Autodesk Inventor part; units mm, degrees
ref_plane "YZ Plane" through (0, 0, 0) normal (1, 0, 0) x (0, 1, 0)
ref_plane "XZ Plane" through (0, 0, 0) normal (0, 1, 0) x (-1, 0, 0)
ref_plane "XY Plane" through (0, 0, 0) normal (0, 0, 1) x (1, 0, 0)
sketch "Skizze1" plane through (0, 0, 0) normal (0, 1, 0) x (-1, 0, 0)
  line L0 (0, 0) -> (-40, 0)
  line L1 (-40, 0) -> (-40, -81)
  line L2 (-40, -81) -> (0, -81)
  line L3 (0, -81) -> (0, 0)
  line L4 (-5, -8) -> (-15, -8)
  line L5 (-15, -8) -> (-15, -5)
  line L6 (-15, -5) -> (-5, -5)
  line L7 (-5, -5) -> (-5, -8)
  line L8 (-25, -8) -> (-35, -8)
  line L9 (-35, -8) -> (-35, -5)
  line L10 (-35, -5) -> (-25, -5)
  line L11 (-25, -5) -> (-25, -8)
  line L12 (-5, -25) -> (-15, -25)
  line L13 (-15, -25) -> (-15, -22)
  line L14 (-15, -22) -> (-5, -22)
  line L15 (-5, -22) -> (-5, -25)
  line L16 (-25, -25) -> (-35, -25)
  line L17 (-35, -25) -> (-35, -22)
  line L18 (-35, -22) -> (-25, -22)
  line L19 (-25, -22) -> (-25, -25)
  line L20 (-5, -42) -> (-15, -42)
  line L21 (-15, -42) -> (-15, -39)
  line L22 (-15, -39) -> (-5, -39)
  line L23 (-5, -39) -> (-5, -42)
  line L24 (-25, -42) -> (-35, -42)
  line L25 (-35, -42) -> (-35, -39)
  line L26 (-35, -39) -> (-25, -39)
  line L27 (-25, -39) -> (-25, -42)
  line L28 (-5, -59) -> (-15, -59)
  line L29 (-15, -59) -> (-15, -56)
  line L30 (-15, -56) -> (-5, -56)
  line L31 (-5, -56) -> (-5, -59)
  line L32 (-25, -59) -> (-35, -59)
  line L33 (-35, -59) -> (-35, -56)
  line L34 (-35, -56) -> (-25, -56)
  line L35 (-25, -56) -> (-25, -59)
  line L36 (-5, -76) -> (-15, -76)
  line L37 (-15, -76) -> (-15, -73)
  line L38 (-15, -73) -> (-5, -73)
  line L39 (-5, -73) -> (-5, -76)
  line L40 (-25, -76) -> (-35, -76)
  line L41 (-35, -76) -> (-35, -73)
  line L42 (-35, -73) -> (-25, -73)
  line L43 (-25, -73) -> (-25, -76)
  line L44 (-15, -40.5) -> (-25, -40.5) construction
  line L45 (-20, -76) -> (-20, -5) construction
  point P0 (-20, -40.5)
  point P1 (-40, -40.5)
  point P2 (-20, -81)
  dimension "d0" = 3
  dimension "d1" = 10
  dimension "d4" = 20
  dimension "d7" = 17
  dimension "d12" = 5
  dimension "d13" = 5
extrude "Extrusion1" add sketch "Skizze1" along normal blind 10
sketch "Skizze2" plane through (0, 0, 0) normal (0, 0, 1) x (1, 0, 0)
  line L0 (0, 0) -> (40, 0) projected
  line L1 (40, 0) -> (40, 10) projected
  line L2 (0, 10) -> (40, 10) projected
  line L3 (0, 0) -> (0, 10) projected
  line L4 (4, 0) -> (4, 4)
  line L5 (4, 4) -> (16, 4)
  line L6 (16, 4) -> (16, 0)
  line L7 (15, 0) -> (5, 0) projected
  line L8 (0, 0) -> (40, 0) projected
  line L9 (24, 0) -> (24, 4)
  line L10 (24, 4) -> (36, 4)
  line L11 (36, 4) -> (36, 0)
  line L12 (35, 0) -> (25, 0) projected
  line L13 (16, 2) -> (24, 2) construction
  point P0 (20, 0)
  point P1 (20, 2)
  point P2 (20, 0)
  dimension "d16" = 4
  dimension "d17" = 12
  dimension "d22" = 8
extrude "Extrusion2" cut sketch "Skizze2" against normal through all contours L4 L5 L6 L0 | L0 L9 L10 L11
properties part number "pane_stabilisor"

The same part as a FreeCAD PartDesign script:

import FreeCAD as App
import Part
import Sketcher
from FreeCAD import Vector

doc = App.newDocument("Part")
params = doc.addObject("Spreadsheet::Sheet", "Params")
for row, (alias, value) in enumerate([
    ("sketch1_width", "10 mm"),
    ("sketch1_height", "3 mm"),
    ("pad1_length", "10 mm"),
    ("sketch2_width", "12 mm"),
    ("sketch2_height", "4 mm"),
], start=1):
    params.set(f"A{row}", alias)
    params.set(f"B{row}", "=" + value)
    params.setAlias(f"B{row}", alias)

body = doc.addObject("PartDesign::Body", "Body")

# Sketch on XZ plane
sketch1 = body.newObject("Sketcher::SketchObject", "Sketch")
sketch1.AttachmentSupport = (doc.getObject("XZ_Plane"), [""])
sketch1.MapMode = "FlatFace"
sketch1.addGeometry([
    Part.LineSegment(Vector(0, -81, 0), Vector(0, 0, 0)),  # 0
    Part.LineSegment(Vector(0, 0, 0), Vector(40, 0, 0)),  # 1
    Part.LineSegment(Vector(40, 0, 0), Vector(40, -81, 0)),  # 2
    Part.LineSegment(Vector(40, -81, 0), Vector(0, -81, 0)),  # 3
    Part.LineSegment(Vector(25, -73, 0), Vector(25, -76, 0)),  # 4
    Part.LineSegment(Vector(25, -76, 0), Vector(35, -76, 0)),  # 5
    Part.LineSegment(Vector(35, -76, 0), Vector(35, -73, 0)),  # 6
    Part.LineSegment(Vector(35, -73, 0), Vector(25, -73, 0)),  # 7
    Part.LineSegment(Vector(25, -56, 0), Vector(25, -59, 0)),  # 8
    Part.LineSegment(Vector(25, -59, 0), Vector(35, -59, 0)),  # 9
    Part.LineSegment(Vector(35, -59, 0), Vector(35, -56, 0)),  # 10
    Part.LineSegment(Vector(35, -56, 0), Vector(25, -56, 0)),  # 11
    Part.LineSegment(Vector(5, -73, 0), Vector(5, -76, 0)),  # 12
    Part.LineSegment(Vector(5, -76, 0), Vector(15, -76, 0)),  # 13
    Part.LineSegment(Vector(15, -76, 0), Vector(15, -73, 0)),  # 14
    Part.LineSegment(Vector(15, -73, 0), Vector(5, -73, 0)),  # 15
    Part.LineSegment(Vector(5, -56, 0), Vector(5, -59, 0)),  # 16
    Part.LineSegment(Vector(5, -59, 0), Vector(15, -59, 0)),  # 17
    Part.LineSegment(Vector(15, -59, 0), Vector(15, -56, 0)),  # 18
    Part.LineSegment(Vector(15, -56, 0), Vector(5, -56, 0)),  # 19
    Part.LineSegment(Vector(25, -39, 0), Vector(25, -42, 0)),  # 20
    Part.LineSegment(Vector(25, -42, 0), Vector(35, -42, 0)),  # 21
    Part.LineSegment(Vector(35, -42, 0), Vector(35, -39, 0)),  # 22
    Part.LineSegment(Vector(35, -39, 0), Vector(25, -39, 0)),  # 23
    Part.LineSegment(Vector(25, -22, 0), Vector(25, -25, 0)),  # 24
    Part.LineSegment(Vector(25, -25, 0), Vector(35, -25, 0)),  # 25
    Part.LineSegment(Vector(35, -25, 0), Vector(35, -22, 0)),  # 26
    Part.LineSegment(Vector(35, -22, 0), Vector(25, -22, 0)),  # 27
    Part.LineSegment(Vector(25, -5, 0), Vector(25, -8, 0)),  # 28
    Part.LineSegment(Vector(25, -8, 0), Vector(35, -8, 0)),  # 29
    Part.LineSegment(Vector(35, -8, 0), Vector(35, -5, 0)),  # 30
    Part.LineSegment(Vector(35, -5, 0), Vector(25, -5, 0)),  # 31
    Part.LineSegment(Vector(5, -39, 0), Vector(5, -42, 0)),  # 32
    Part.LineSegment(Vector(5, -42, 0), Vector(15, -42, 0)),  # 33
    Part.LineSegment(Vector(15, -42, 0), Vector(15, -39, 0)),  # 34
    Part.LineSegment(Vector(15, -39, 0), Vector(5, -39, 0)),  # 35
    Part.LineSegment(Vector(5, -22, 0), Vector(5, -25, 0)),  # 36
    Part.LineSegment(Vector(5, -25, 0), Vector(15, -25, 0)),  # 37
    Part.LineSegment(Vector(15, -25, 0), Vector(15, -22, 0)),  # 38
    Part.LineSegment(Vector(15, -22, 0), Vector(5, -22, 0)),  # 39
    Part.LineSegment(Vector(5, -5, 0), Vector(5, -8, 0)),  # 40
    Part.LineSegment(Vector(5, -8, 0), Vector(15, -8, 0)),  # 41
    Part.LineSegment(Vector(15, -8, 0), Vector(15, -5, 0)),  # 42
    Part.LineSegment(Vector(15, -5, 0), Vector(5, -5, 0)),  # 43
], False)
sketch1.addConstraint([
    Sketcher.Constraint("Coincident", 0, 2, 1, 1),
    Sketcher.Constraint("Coincident", 1, 2, 2, 1),
    Sketcher.Constraint("Coincident", 2, 2, 3, 1),
    Sketcher.Constraint("Coincident", 3, 2, 0, 1),
    Sketcher.Constraint("Coincident", 4, 2, 5, 1),
    Sketcher.Constraint("Coincident", 5, 2, 6, 1),
    Sketcher.Constraint("Coincident", 6, 2, 7, 1),
    Sketcher.Constraint("Coincident", 7, 2, 4, 1),
    Sketcher.Constraint("Coincident", 8, 2, 9, 1),
    Sketcher.Constraint("Coincident", 9, 2, 10, 1),
    Sketcher.Constraint("Coincident", 10, 2, 11, 1),
    Sketcher.Constraint("Coincident", 11, 2, 8, 1),
    Sketcher.Constraint("Coincident", 12, 2, 13, 1),
    Sketcher.Constraint("Coincident", 13, 2, 14, 1),
    Sketcher.Constraint("Coincident", 14, 2, 15, 1),
    Sketcher.Constraint("Coincident", 15, 2, 12, 1),
    Sketcher.Constraint("Coincident", 16, 2, 17, 1),
    Sketcher.Constraint("Coincident", 17, 2, 18, 1),
    Sketcher.Constraint("Coincident", 18, 2, 19, 1),
    Sketcher.Constraint("Coincident", 19, 2, 16, 1),
    Sketcher.Constraint("Coincident", 20, 2, 21, 1),
    Sketcher.Constraint("Coincident", 21, 2, 22, 1),
    Sketcher.Constraint("Coincident", 22, 2, 23, 1),
    Sketcher.Constraint("Coincident", 23, 2, 20, 1),
    Sketcher.Constraint("Coincident", 24, 2, 25, 1),
    Sketcher.Constraint("Coincident", 25, 2, 26, 1),
    Sketcher.Constraint("Coincident", 26, 2, 27, 1),
    Sketcher.Constraint("Coincident", 27, 2, 24, 1),
    Sketcher.Constraint("Coincident", 28, 2, 29, 1),
    Sketcher.Constraint("Coincident", 29, 2, 30, 1),
    Sketcher.Constraint("Coincident", 30, 2, 31, 1),
    Sketcher.Constraint("Coincident", 31, 2, 28, 1),
    Sketcher.Constraint("Coincident", 32, 2, 33, 1),
    Sketcher.Constraint("Coincident", 33, 2, 34, 1),
    Sketcher.Constraint("Coincident", 34, 2, 35, 1),
    Sketcher.Constraint("Coincident", 35, 2, 32, 1),
    Sketcher.Constraint("Coincident", 36, 2, 37, 1),
    Sketcher.Constraint("Coincident", 37, 2, 38, 1),
    Sketcher.Constraint("Coincident", 38, 2, 39, 1),
    Sketcher.Constraint("Coincident", 39, 2, 36, 1),
    Sketcher.Constraint("Coincident", 40, 2, 41, 1),
    Sketcher.Constraint("Coincident", 41, 2, 42, 1),
    Sketcher.Constraint("Coincident", 42, 2, 43, 1),
    Sketcher.Constraint("Coincident", 43, 2, 40, 1),
    Sketcher.Constraint("Vertical", 0),
    Sketcher.Constraint("Horizontal", 1),
    Sketcher.Constraint("Vertical", 2),
    Sketcher.Constraint("Horizontal", 3),
    Sketcher.Constraint("Vertical", 4),
    Sketcher.Constraint("Horizontal", 5),
    Sketcher.Constraint("Vertical", 6),
    Sketcher.Constraint("Horizontal", 7),
    Sketcher.Constraint("Vertical", 8),
    Sketcher.Constraint("Horizontal", 9),
    Sketcher.Constraint("Vertical", 10),
    Sketcher.Constraint("Horizontal", 11),
    Sketcher.Constraint("Vertical", 12),
    Sketcher.Constraint("Horizontal", 13),
    Sketcher.Constraint("Vertical", 14),
    Sketcher.Constraint("Horizontal", 15),
    Sketcher.Constraint("Vertical", 16),
    Sketcher.Constraint("Horizontal", 17),
    Sketcher.Constraint("Vertical", 18),
    Sketcher.Constraint("Horizontal", 19),
    Sketcher.Constraint("Vertical", 20),
    Sketcher.Constraint("Horizontal", 21),
    Sketcher.Constraint("Vertical", 22),
    Sketcher.Constraint("Horizontal", 23),
    Sketcher.Constraint("Vertical", 24),
    Sketcher.Constraint("Horizontal", 25),
    Sketcher.Constraint("Vertical", 26),
    Sketcher.Constraint("Horizontal", 27),
    Sketcher.Constraint("Vertical", 28),
    Sketcher.Constraint("Horizontal", 29),
    Sketcher.Constraint("Vertical", 30),
    Sketcher.Constraint("Horizontal", 31),
    Sketcher.Constraint("Vertical", 32),
    Sketcher.Constraint("Horizontal", 33),
    Sketcher.Constraint("Vertical", 34),
    Sketcher.Constraint("Horizontal", 35),
    Sketcher.Constraint("Vertical", 36),
    Sketcher.Constraint("Horizontal", 37),
    Sketcher.Constraint("Vertical", 38),
    Sketcher.Constraint("Horizontal", 39),
    Sketcher.Constraint("Vertical", 40),
    Sketcher.Constraint("Horizontal", 41),
    Sketcher.Constraint("Vertical", 42),
    Sketcher.Constraint("Horizontal", 43),
    Sketcher.Constraint("Coincident", 0, 2, -1, 1),
    Sketcher.Constraint("Horizontal", 5, 2, 12, 2),
    Sketcher.Constraint("Horizontal", 7, 2, 14, 2),
    Sketcher.Constraint("Horizontal", 9, 2, 16, 2),
    Sketcher.Constraint("Horizontal", 11, 2, 18, 2),
    Sketcher.Constraint("Horizontal", 21, 2, 32, 2),
    Sketcher.Constraint("Horizontal", 23, 2, 34, 2),
    Sketcher.Constraint("Horizontal", 25, 2, 36, 2),
    Sketcher.Constraint("Horizontal", 27, 2, 38, 2),
    Sketcher.Constraint("Horizontal", 29, 2, 40, 2),
    Sketcher.Constraint("Horizontal", 31, 2, 42, 2),
    Sketcher.Constraint("Vertical", 7, 2, 8, 2),
    Sketcher.Constraint("Vertical", 6, 2, 9, 2),
    Sketcher.Constraint("Vertical", 15, 2, 16, 2),
    Sketcher.Constraint("Vertical", 14, 2, 17, 2),
    Sketcher.Constraint("Vertical", 11, 2, 20, 2),
    Sketcher.Constraint("Vertical", 10, 2, 21, 2),
    Sketcher.Constraint("Vertical", 23, 2, 24, 2),
    Sketcher.Constraint("Vertical", 22, 2, 25, 2),
    Sketcher.Constraint("Vertical", 27, 2, 28, 2),
    Sketcher.Constraint("Vertical", 26, 2, 29, 2),
    Sketcher.Constraint("Vertical", 19, 2, 32, 2),
    Sketcher.Constraint("Vertical", 18, 2, 33, 2),
    Sketcher.Constraint("Vertical", 35, 2, 36, 2),
    Sketcher.Constraint("Vertical", 34, 2, 37, 2),
    Sketcher.Constraint("Vertical", 39, 2, 40, 2),
    Sketcher.Constraint("Vertical", 38, 2, 41, 2),
    Sketcher.Constraint("Equal", 11, 13),
    Sketcher.Constraint("Equal", 6, 8),
    Sketcher.Constraint("Equal", 18, 20),
    Sketcher.Constraint("Equal", 22, 24),
    Sketcher.Constraint("Equal", 26, 28),
    Sketcher.Constraint("DistanceX", 5, 1, 5, 2, 10.0),
    Sketcher.Constraint("DistanceY", 4, 2, 4, 1, 3.0),
    Sketcher.Constraint("DistanceX", -1, 1, 12, 2, 5.0),
    Sketcher.Constraint("DistanceY", 30, 2, -1, 1, 5.0),
    Sketcher.Constraint("DistanceY", 2, 2, 4, 2, 5.0),
    Sketcher.Constraint("DistanceX", 5, 2, 2, 2, 5.0),
    Sketcher.Constraint("DistanceY", 4, 2, 8, 2, 17.0),
    Sketcher.Constraint("DistanceX", 12, 2, 4, 2, 20.0),
    Sketcher.Constraint("DistanceY", 8, 2, 20, 2, 17.0),
    Sketcher.Constraint("DistanceY", 20, 2, 24, 2, 17.0),
    Sketcher.Constraint("DistanceY", 24, 2, 28, 2, 17.0),
])
sketch1.setExpression("Constraints[120]", "Params.sketch1_width")
sketch1.setExpression("Constraints[121]", "Params.sketch1_height")
pad1 = body.newObject("PartDesign::Pad", "Pad")
pad1.Profile = sketch1
pad1.setExpression("Length", "Params.pad1_length")
pad1.Reversed = True

# Sketch on XY plane
sketch2 = body.newObject("Sketcher::SketchObject", "Sketch001")
sketch2.AttachmentSupport = (doc.getObject("XY_Plane"), [""])
sketch2.MapMode = "FlatFace"
sketch2.addGeometry([
    Part.LineSegment(Vector(4, 4, 0), Vector(4, 0, 0)),  # 0
    Part.LineSegment(Vector(4, 0, 0), Vector(16, 0, 0)),  # 1
    Part.LineSegment(Vector(16, 0, 0), Vector(16, 4, 0)),  # 2
    Part.LineSegment(Vector(16, 4, 0), Vector(4, 4, 0)),  # 3
    Part.LineSegment(Vector(24, 0, 0), Vector(36, 0, 0)),  # 4
    Part.LineSegment(Vector(36, 0, 0), Vector(36, 4, 0)),  # 5
    Part.LineSegment(Vector(36, 4, 0), Vector(24, 4, 0)),  # 6
    Part.LineSegment(Vector(24, 4, 0), Vector(24, 0, 0)),  # 7
], False)
sketch2.addConstraint([
    Sketcher.Constraint("Coincident", 0, 2, 1, 1),
    Sketcher.Constraint("Coincident", 1, 2, 2, 1),
    Sketcher.Constraint("Coincident", 2, 2, 3, 1),
    Sketcher.Constraint("Coincident", 3, 2, 0, 1),
    Sketcher.Constraint("Coincident", 4, 2, 5, 1),
    Sketcher.Constraint("Coincident", 5, 2, 6, 1),
    Sketcher.Constraint("Coincident", 6, 2, 7, 1),
    Sketcher.Constraint("Coincident", 7, 2, 4, 1),
    Sketcher.Constraint("Vertical", 0),
    Sketcher.Constraint("Horizontal", 1),
    Sketcher.Constraint("Vertical", 2),
    Sketcher.Constraint("Horizontal", 3),
    Sketcher.Constraint("Horizontal", 4),
    Sketcher.Constraint("Vertical", 5),
    Sketcher.Constraint("Horizontal", 6),
    Sketcher.Constraint("Vertical", 7),
    Sketcher.Constraint("PointOnObject", 0, 2, -1),
    Sketcher.Constraint("PointOnObject", 4, 2, -1),
    Sketcher.Constraint("Horizontal", 3, 2, 5, 2),
    Sketcher.Constraint("Equal", 3, 4),
    Sketcher.Constraint("DistanceX", 1, 1, 1, 2, 12.0),
    Sketcher.Constraint("DistanceY", 0, 2, 0, 1, 4.0),
    Sketcher.Constraint("DistanceX", -1, 1, 0, 2, 4.0),
    Sketcher.Constraint("DistanceX", 2, 2, 6, 2, 8.0),
])
sketch2.setExpression("Constraints[20]", "Params.sketch2_width")
sketch2.setExpression("Constraints[21]", "Params.sketch2_height")
pocket1 = body.newObject("PartDesign::Pocket", "Pocket")
pocket1.Profile = sketch2
pocket1.Type = "ThroughAll"

doc.recompute()
